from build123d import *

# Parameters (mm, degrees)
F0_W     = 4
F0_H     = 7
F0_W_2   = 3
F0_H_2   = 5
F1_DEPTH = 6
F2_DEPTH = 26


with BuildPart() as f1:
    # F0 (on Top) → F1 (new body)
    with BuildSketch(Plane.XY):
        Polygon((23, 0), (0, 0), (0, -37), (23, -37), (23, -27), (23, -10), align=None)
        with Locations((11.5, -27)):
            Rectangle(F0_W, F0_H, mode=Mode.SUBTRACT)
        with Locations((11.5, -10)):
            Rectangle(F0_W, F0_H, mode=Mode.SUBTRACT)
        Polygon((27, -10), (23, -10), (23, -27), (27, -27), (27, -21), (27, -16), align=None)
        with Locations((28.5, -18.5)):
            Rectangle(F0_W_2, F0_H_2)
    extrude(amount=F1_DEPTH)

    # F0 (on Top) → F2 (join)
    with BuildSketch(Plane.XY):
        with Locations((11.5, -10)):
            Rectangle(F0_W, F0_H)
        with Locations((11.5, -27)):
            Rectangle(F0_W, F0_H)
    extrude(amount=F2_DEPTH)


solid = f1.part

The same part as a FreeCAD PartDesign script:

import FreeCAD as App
import Part
import Sketcher
from FreeCAD import Vector


def add_polygon(sketch, points):
    """Adds a closed chain of lines whose ends are joined by coincident constraints."""
    first, n = sketch.GeometryCount, len(points)
    for a, b in zip(points, points[1:] + points[:1]):
        sketch.addGeometry(Part.LineSegment(App.Vector(*a, 0), App.Vector(*b, 0)), False)
    for i in range(n):
        sketch.addConstraint(Sketcher.Constraint("Coincident", first + i, 2, first + (i + 1) % n, 1))

doc = App.newDocument("Part")
body = doc.addObject("PartDesign::Body", "Body")

# Sketch on XY plane
sketch1 = body.newObject("Sketcher::SketchObject", "Sketch")
sketch1.AttachmentSupport = (doc.getObject("XY_Plane"), [""])
sketch1.MapMode = "FlatFace"
add_polygon(sketch1, [(23, 0), (0, 0), (0, -37), (23, -37), (23, -27), (27, -27), (27, -21), (30, -21), (30, -16), (27, -16), (27, -10), (23, -10)])  # lines 0-11
add_polygon(sketch1, [(13.5, -30.5), (9.5, -30.5), (9.5, -23.5), (13.5, -23.5)])  # lines 12-15
add_polygon(sketch1, [(13.5, -13.5), (9.5, -13.5), (9.5, -6.5), (13.5, -6.5)])  # lines 16-19
sketch1.addConstraint([
    Sketcher.Constraint("Horizontal", 0),
    Sketcher.Constraint("Vertical", 1),
    Sketcher.Constraint("Horizontal", 2),
    Sketcher.Constraint("Vertical", 3),
    Sketcher.Constraint("Horizontal", 4),
    Sketcher.Constraint("Vertical", 5),
    Sketcher.Constraint("Horizontal", 6),
    Sketcher.Constraint("Vertical", 7),
    Sketcher.Constraint("Horizontal", 8),
    Sketcher.Constraint("Vertical", 9),
    Sketcher.Constraint("Horizontal", 10),
    Sketcher.Constraint("Vertical", 11),
    Sketcher.Constraint("Horizontal", 12),
    Sketcher.Constraint("Vertical", 13),
    Sketcher.Constraint("Horizontal", 14),
    Sketcher.Constraint("Vertical", 15),
    Sketcher.Constraint("Horizontal", 16),
    Sketcher.Constraint("Vertical", 17),
    Sketcher.Constraint("Horizontal", 18),
    Sketcher.Constraint("Vertical", 19),
    Sketcher.Constraint("Coincident", 0, 2, -1, 1),
    Sketcher.Constraint("Vertical", 5, 2, 8, 2),
    Sketcher.Constraint("Vertical", 3, 2, 10, 2),
    Sketcher.Constraint("Vertical", 13, 2, 16, 2),
    Sketcher.Constraint("Vertical", 15, 2, 18, 2),
    Sketcher.Constraint("Equal", 10, 12),
    Sketcher.Constraint("Equal", 5, 9),
    Sketcher.Constraint("Equal", 3, 11),
    Sketcher.Constraint("Equal", 15, 17),
    Sketcher.Constraint("DistanceX", 0, 2, 0, 1, 23.0),
    Sketcher.Constraint("DistanceX", 4, 1, 4, 2, 4.0),
    Sketcher.Constraint("DistanceX", 6, 1, 6, 2, 3.0),
    Sketcher.Constraint("DistanceY", 1, 2, 1, 1, 37.0),
    Sketcher.Constraint("DistanceY", 3, 1, 3, 2, 10.0),
    Sketcher.Constraint("DistanceY", 5, 1, 5, 2, 6.0),
    Sketcher.Constraint("DistanceY", 13, 1, 13, 2, 7.0),
    Sketcher.Constraint("DistanceY", 13, 2, 16, 2, 10.0),
    Sketcher.Constraint("DistanceX", -1, 1, 12, 2, 9.5),
    Sketcher.Constraint("DistanceY", 12, 2, -1, 1, 30.5),
])
pad1 = body.newObject("PartDesign::Pad", "Pad")
pad1.Profile = sketch1
pad1.Length = 6

# Sketch on XY plane
sketch2 = body.newObject("Sketcher::SketchObject", "Sketch001")
sketch2.AttachmentSupport = (doc.getObject("XY_Plane"), [""])
sketch2.MapMode = "FlatFace"
add_polygon(sketch2, [(9.5, -6.5), (9.5, -13.5), (13.5, -13.5), (13.5, -6.5)])  # lines 0-3
add_polygon(sketch2, [(9.5, -23.5), (9.5, -30.5), (13.5, -30.5), (13.5, -23.5)])  # lines 4-7
sketch2.addConstraint([
    Sketcher.Constraint("Vertical", 0),
    Sketcher.Constraint("Horizontal", 1),
    Sketcher.Constraint("Vertical", 2),
    Sketcher.Constraint("Horizontal", 3),
    Sketcher.Constraint("Vertical", 4),
    Sketcher.Constraint("Horizontal", 5),
    Sketcher.Constraint("Vertical", 6),
    Sketcher.Constraint("Horizontal", 7),
    Sketcher.Constraint("Vertical", 3, 2, 4, 2),
    Sketcher.Constraint("Vertical", 2, 2, 5, 2),
    Sketcher.Constraint("Equal", 2, 4),
    Sketcher.Constraint("DistanceX", 1, 1, 1, 2, 4.0),
    Sketcher.Constraint("DistanceY", 0, 2, 0, 1, 7.0),
    Sketcher.Constraint("DistanceY", 4, 2, 0, 2, 17.0),
    Sketcher.Constraint("DistanceX", -1, 1, 0, 2, 9.5),
    Sketcher.Constraint("DistanceY", 0, 2, -1, 1, 13.5),
])
pad2 = body.newObject("PartDesign::Pad", "Pad001")
pad2.Profile = sketch2
pad2.Length = 26

doc.recompute()
